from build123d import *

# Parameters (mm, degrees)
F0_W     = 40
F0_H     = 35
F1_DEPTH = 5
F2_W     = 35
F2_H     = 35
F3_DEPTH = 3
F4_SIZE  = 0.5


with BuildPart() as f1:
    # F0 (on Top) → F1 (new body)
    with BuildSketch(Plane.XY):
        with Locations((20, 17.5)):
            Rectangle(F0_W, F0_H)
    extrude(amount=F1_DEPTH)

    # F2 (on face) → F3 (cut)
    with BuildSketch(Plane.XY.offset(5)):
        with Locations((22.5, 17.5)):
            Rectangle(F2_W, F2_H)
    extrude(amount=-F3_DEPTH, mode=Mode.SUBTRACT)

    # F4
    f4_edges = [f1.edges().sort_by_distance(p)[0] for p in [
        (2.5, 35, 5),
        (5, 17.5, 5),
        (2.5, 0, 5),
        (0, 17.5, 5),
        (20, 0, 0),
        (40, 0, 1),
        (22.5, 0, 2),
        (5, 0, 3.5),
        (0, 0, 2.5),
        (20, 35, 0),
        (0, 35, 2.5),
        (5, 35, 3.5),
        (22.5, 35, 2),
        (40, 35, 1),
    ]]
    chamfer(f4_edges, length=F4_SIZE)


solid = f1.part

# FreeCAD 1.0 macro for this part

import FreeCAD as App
import Part
import Sketcher

V = App.Vector


def edges_at(feature, points):
    """Names of the edges that pass closest to the given points."""
    edges = feature.Shape.Edges
    near = lambda p: min(range(len(edges)), key=lambda i: edges[i].distToShape(Part.Vertex(*p))[0])
    return sorted({f"Edge{near(p) + 1}" for p in points})

doc = App.newDocument("Part")
body = doc.addObject("PartDesign::Body", "Body")

sketch1 = body.newObject("Sketcher::SketchObject", "Sketch")
sketch1.AttachmentSupport = (doc.getObject("XY_Plane"), [""])
sketch1.MapMode = "FlatFace"
sketch1.addGeometry(Part.LineSegment(V(0, 35, 0), V(0, 0, 0)), False)
sketch1.addGeometry(Part.LineSegment(V(0, 0, 0), V(40, 0, 0)), False)
sketch1.addGeometry(Part.LineSegment(V(40, 0, 0), V(40, 35, 0)), False)
sketch1.addGeometry(Part.LineSegment(V(40, 35, 0), V(0, 35, 0)), False)
sketch1.addConstraint(Sketcher.Constraint("Coincident", 0, 2, 1, 1))
sketch1.addConstraint(Sketcher.Constraint("Coincident", 1, 2, 2, 1))
sketch1.addConstraint(Sketcher.Constraint("Coincident", 2, 2, 3, 1))
sketch1.addConstraint(Sketcher.Constraint("Coincident", 3, 2, 0, 1))
sketch1.addConstraint(Sketcher.Constraint("Vertical", 0))
sketch1.addConstraint(Sketcher.Constraint("Horizontal", 1))
sketch1.addConstraint(Sketcher.Constraint("Vertical", 2))
sketch1.addConstraint(Sketcher.Constraint("Horizontal", 3))
sketch1.addConstraint(Sketcher.Constraint("Coincident", 0, 2, -1, 1))
sketch1.addConstraint(Sketcher.Constraint("DistanceX", 1, 1, 1, 2, 40.0))
sketch1.addConstraint(Sketcher.Constraint("DistanceY", 0, 2, 0, 1, 35.0))
pad1 = body.newObject("PartDesign::Pad", "Pad")
pad1.Profile = sketch1
pad1.Length = 5

sketch2 = body.newObject("Sketcher::SketchObject", "Sketch001")
sketch2.AttachmentSupport = (doc.getObject("XY_Plane"), [""])
sketch2.MapMode = "FlatFace"
sketch2.AttachmentOffset = App.Placement(V(0, 0, 5), App.Rotation())
sketch2.addGeometry(Part.LineSegment(V(5, 35, 0), V(5, 0, 0)), False)
sketch2.addGeometry(Part.LineSegment(V(5, 0, 0), V(40, 0, 0)), False)
sketch2.addGeometry(Part.LineSegment(V(40, 0, 0), V(40, 35, 0)), False)
sketch2.addGeometry(Part.LineSegment(V(40, 35, 0), V(5, 35, 0)), False)
sketch2.addConstraint(Sketcher.Constraint("Coincident", 0, 2, 1, 1))
sketch2.addConstraint(Sketcher.Constraint("Coincident", 1, 2, 2, 1))
sketch2.addConstraint(Sketcher.Constraint("Coincident", 2, 2, 3, 1))
sketch2.addConstraint(Sketcher.Constraint("Coincident", 3, 2, 0, 1))
sketch2.addConstraint(Sketcher.Constraint("Vertical", 0))
sketch2.addConstraint(Sketcher.Constraint("Horizontal", 1))
sketch2.addConstraint(Sketcher.Constraint("Vertical", 2))
sketch2.addConstraint(Sketcher.Constraint("Horizontal", 3))
sketch2.addConstraint(Sketcher.Constraint("PointOnObject", 0, 2, -1))
sketch2.addConstraint(Sketcher.Constraint("Equal", 3, 0))
sketch2.addConstraint(Sketcher.Constraint("DistanceX", 1, 1, 1, 2, 35.0))
sketch2.addConstraint(Sketcher.Constraint("DistanceX", -1, 1, 0, 2, 5.0))
pocket1 = body.newObject("PartDesign::Pocket", "Pocket")
pocket1.Profile = sketch2
pocket1.Length = 3
doc.recompute()

chamfer = body.newObject("PartDesign::Chamfer", "Chamfer")
chamfer.Base = (pocket1, edges_at(pocket1, [
    (2.5, 35, 5),
    (5, 17.5, 5),
    (2.5, 0, 5),
    (0, 17.5, 5),
    (20, 0, 0),
    (40, 0, 1),
    (22.5, 0, 2),
    (5, 0, 3.5),
    (0, 0, 2.5),
    (20, 35, 0),
    (0, 35, 2.5),
    (5, 35, 3.5),
    (22.5, 35, 2),
    (40, 35, 1),
]))
chamfer.Size = 0.5

doc.recompute()
